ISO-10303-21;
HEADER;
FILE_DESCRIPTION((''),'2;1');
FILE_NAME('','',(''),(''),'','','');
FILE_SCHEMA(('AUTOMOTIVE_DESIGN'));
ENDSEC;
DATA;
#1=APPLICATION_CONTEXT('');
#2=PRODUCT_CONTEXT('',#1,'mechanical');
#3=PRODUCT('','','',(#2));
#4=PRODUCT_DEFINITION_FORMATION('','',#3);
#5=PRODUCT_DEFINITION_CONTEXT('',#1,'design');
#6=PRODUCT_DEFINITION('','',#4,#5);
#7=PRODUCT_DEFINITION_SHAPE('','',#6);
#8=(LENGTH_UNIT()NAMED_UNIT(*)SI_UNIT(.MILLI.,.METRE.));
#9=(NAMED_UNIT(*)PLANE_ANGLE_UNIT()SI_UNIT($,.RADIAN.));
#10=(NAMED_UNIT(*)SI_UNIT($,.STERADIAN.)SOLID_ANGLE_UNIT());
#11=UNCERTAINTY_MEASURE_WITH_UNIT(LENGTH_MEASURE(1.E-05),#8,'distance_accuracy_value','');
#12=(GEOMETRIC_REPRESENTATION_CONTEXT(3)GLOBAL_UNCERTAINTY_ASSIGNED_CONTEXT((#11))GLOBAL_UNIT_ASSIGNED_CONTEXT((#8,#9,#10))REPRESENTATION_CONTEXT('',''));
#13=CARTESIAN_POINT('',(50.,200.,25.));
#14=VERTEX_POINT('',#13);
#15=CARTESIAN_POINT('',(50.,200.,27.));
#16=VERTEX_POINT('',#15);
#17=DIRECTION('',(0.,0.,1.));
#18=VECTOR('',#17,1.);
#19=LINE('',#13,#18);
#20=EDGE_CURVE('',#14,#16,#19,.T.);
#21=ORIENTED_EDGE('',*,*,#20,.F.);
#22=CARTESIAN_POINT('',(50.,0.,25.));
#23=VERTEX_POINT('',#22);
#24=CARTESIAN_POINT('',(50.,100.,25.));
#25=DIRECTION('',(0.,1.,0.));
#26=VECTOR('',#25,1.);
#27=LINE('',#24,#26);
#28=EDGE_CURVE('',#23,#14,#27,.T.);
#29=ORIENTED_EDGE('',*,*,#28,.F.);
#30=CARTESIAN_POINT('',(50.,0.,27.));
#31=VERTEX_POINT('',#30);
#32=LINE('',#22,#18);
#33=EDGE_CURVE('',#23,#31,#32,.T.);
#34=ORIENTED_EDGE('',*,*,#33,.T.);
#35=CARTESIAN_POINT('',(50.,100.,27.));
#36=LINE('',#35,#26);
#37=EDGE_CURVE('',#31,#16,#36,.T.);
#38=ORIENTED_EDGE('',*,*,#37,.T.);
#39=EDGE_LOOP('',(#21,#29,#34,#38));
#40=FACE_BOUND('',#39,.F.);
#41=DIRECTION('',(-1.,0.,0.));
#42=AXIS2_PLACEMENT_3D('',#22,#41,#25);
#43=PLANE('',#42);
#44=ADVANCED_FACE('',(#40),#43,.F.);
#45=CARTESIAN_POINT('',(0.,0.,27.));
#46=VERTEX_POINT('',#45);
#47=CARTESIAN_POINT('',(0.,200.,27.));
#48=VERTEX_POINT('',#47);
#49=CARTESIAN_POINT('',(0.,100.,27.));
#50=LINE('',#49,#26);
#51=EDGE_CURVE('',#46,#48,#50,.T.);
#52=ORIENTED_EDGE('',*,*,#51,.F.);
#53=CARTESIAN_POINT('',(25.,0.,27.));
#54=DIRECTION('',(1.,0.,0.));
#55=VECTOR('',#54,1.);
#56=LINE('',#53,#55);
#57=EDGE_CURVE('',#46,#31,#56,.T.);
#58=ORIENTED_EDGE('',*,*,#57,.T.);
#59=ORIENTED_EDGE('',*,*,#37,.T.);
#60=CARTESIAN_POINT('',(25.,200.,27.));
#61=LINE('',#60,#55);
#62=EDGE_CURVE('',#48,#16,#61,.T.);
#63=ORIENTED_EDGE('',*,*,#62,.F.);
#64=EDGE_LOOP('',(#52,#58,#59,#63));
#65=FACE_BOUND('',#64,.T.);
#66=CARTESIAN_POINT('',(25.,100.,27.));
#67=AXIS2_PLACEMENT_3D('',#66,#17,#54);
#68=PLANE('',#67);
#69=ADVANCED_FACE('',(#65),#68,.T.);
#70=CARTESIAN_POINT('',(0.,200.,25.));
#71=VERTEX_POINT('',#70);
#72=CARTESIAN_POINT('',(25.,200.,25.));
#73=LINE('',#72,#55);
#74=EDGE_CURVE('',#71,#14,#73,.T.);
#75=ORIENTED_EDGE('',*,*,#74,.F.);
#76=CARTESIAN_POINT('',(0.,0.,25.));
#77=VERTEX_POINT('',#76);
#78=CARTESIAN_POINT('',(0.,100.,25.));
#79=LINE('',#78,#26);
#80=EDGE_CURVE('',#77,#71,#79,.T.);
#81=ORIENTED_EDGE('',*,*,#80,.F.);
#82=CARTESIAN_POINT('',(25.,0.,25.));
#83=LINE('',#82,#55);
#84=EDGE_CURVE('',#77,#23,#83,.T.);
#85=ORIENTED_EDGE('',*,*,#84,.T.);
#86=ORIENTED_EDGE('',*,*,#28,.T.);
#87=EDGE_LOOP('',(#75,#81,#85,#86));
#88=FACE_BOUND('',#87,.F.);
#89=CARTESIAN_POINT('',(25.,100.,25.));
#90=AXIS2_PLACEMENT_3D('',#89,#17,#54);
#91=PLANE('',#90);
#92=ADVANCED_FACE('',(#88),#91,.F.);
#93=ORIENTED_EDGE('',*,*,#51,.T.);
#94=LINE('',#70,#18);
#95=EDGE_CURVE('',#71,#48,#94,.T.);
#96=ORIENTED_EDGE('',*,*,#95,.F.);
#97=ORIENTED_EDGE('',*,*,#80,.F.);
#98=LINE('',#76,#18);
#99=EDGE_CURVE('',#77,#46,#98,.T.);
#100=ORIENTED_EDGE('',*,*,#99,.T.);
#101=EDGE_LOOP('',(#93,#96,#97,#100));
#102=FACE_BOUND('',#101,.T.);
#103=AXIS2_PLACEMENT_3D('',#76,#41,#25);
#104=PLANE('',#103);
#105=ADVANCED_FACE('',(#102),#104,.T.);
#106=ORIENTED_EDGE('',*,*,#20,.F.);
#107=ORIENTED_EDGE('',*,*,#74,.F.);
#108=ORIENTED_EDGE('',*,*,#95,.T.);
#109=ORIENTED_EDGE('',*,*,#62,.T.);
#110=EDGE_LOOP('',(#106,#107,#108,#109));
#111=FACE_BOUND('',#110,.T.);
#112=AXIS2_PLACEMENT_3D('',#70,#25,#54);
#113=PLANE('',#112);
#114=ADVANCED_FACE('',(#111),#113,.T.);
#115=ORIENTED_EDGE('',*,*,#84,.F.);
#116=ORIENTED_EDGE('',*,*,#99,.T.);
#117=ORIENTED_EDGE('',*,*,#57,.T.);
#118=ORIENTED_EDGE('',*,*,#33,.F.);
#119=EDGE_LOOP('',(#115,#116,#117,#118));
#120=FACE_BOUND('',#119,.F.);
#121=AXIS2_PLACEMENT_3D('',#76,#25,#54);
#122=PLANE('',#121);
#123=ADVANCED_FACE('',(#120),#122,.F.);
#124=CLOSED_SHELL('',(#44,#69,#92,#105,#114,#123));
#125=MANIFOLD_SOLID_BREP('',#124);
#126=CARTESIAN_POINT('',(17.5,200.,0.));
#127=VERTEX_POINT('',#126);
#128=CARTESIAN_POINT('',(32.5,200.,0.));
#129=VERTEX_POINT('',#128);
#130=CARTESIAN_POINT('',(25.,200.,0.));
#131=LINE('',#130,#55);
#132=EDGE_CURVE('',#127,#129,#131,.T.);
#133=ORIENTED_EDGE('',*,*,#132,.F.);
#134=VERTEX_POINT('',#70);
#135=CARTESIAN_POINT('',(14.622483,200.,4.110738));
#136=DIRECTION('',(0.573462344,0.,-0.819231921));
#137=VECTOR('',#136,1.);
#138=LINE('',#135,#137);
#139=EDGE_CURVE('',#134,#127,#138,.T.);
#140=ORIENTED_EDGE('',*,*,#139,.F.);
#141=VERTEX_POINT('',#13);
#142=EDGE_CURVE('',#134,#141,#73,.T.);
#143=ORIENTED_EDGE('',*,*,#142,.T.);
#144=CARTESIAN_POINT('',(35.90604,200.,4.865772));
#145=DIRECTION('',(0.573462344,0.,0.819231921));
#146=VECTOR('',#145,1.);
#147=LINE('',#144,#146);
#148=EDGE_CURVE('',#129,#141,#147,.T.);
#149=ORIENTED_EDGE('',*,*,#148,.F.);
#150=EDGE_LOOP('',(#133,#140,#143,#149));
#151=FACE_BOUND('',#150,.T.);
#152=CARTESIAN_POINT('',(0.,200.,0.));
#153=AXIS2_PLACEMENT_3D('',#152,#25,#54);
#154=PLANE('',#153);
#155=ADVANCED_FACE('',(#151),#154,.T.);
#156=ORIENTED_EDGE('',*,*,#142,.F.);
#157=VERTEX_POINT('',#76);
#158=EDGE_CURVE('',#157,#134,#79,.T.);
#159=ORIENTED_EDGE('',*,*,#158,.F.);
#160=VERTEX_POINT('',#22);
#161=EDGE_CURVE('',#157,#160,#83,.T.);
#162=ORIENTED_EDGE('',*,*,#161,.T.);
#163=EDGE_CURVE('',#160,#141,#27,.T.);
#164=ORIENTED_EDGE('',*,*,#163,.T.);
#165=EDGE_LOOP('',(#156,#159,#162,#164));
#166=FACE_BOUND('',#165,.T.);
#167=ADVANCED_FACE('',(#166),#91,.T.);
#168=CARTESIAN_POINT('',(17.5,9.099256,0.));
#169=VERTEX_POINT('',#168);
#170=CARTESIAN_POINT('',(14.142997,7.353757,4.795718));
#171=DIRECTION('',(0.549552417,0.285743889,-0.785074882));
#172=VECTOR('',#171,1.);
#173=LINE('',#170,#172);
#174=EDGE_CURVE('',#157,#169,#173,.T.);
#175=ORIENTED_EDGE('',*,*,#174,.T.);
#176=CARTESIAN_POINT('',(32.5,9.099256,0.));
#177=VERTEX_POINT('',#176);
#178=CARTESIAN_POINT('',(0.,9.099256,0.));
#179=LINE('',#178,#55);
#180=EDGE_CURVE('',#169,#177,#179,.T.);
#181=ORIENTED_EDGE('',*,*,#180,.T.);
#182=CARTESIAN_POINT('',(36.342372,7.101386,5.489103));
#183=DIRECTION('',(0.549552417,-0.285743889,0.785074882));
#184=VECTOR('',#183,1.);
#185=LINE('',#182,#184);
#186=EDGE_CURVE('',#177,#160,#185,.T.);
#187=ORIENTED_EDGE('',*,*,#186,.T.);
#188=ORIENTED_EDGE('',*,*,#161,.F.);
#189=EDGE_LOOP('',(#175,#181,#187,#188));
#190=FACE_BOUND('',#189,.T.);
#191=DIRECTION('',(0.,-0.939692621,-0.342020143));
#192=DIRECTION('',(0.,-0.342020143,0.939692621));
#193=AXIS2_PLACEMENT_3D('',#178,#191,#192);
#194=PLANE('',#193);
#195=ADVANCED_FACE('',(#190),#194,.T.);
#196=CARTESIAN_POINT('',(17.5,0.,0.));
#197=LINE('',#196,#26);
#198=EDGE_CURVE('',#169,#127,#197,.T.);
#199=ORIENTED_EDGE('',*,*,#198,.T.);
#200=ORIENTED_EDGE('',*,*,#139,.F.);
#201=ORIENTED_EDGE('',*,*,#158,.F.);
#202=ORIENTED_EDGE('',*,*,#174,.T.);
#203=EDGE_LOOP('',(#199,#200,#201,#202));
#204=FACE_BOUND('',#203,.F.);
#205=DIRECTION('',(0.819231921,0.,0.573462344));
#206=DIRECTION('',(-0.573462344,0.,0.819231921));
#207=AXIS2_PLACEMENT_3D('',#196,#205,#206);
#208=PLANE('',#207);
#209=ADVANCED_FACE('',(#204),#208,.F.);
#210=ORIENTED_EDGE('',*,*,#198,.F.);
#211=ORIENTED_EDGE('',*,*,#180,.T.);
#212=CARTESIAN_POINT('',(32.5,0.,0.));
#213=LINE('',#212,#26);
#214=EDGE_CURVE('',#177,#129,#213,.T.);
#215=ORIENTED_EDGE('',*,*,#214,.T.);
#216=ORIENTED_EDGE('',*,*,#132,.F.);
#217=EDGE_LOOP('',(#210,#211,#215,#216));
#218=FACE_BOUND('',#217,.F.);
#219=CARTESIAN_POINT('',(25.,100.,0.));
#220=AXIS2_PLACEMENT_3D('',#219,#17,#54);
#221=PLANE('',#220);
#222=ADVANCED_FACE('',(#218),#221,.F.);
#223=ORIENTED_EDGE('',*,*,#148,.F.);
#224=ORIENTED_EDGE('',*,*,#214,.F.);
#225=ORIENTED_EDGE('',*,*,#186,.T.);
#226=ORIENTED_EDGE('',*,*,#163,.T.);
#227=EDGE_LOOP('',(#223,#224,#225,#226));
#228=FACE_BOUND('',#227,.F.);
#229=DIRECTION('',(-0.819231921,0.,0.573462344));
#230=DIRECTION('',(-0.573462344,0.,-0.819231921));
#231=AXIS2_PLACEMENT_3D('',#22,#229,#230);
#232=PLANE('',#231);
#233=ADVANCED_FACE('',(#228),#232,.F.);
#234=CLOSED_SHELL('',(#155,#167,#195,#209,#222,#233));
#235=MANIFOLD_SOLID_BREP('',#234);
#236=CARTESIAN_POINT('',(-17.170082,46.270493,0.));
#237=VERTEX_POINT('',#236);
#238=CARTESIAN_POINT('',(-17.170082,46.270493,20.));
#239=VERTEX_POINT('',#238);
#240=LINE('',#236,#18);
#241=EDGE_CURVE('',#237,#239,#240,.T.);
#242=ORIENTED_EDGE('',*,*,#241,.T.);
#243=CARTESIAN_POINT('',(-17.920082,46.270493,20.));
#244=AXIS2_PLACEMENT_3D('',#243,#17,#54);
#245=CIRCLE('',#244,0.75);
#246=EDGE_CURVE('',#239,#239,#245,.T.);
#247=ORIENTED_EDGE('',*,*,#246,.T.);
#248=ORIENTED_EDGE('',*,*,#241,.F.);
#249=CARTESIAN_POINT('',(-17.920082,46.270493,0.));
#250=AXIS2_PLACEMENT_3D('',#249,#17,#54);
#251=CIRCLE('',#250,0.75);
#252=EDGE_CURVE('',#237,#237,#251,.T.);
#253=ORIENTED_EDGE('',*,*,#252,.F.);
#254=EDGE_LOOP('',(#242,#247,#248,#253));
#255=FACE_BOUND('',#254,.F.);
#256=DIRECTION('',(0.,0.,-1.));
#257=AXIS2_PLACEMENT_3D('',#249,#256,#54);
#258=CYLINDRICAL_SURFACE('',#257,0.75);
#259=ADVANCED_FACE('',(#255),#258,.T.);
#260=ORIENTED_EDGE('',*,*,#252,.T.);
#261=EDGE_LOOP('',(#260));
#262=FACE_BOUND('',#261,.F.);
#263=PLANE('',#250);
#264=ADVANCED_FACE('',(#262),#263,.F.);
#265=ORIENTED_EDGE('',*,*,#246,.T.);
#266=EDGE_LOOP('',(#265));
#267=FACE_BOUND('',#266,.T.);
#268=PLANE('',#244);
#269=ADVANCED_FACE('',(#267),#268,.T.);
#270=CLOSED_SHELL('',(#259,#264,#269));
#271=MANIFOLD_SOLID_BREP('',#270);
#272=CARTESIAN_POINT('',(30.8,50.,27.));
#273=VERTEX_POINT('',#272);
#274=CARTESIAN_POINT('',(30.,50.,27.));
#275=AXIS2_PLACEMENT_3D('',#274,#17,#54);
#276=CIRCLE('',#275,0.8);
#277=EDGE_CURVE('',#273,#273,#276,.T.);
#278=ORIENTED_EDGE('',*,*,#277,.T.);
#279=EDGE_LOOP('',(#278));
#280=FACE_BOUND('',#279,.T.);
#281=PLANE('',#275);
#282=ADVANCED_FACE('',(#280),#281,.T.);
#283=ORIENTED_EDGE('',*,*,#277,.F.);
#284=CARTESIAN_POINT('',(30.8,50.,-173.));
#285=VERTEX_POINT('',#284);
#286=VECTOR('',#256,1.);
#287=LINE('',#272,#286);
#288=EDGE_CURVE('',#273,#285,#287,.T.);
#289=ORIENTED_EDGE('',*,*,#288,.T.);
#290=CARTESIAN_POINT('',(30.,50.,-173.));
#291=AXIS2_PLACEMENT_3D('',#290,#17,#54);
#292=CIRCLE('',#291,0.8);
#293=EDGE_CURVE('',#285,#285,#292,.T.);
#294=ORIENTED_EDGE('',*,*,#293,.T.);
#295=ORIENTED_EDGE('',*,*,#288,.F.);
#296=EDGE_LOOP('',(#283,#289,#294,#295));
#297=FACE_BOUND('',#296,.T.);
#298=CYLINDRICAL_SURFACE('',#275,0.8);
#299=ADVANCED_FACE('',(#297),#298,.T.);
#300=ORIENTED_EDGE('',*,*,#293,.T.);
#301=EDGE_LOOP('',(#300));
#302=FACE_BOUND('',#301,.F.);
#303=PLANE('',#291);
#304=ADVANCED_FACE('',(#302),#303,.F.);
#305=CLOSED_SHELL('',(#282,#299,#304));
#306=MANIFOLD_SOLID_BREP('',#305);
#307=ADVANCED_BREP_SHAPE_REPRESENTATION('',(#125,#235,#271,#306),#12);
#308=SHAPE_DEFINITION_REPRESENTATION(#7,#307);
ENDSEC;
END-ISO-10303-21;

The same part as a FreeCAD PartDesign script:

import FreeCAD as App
import Part
import Sketcher
from FreeCAD import Vector
Q = App.Units.Quantity


def add_polygon(sketch, points):
    """Adds a closed chain of lines whose ends are joined by coincident constraints."""
    first, n = sketch.GeometryCount, len(points)
    for a, b in zip(points, points[1:] + points[:1]):
        sketch.addGeometry(Part.LineSegment(App.Vector(*a, 0), App.Vector(*b, 0)), False)
    for i in range(n):
        sketch.addConstraint(Sketcher.Constraint("Coincident", first + i, 2, first + (i + 1) % n, 1))

doc = App.newDocument("Part")
params = doc.addObject("Spreadsheet::Sheet", "Params")
for row, (alias, value) in enumerate([
    ("sketch1_width", "50 mm"),
    ("sketch1_height", "200 mm"),
    ("pad1_length", "25 mm"),
    ("sketch2_height", "25 mm"),
    ("sketch2_width", "17.5 mm"),
    ("sketch3_height", "25 mm"),
    ("sketch4_width", "50 mm"),
    ("sketch4_height", "200 mm"),
    ("pad2_length", "2 mm"),
    ("sketch5_diameter", "1.6 mm"),
    ("pad3_length", "200 mm"),
    ("sketch6_diameter", "1.5 mm"),
    ("pad4_length", "20 mm"),
], start=1):
    params.set(f"A{row}", alias)
    params.set(f"B{row}", "=" + value)
    params.setAlias(f"B{row}", alias)

body = doc.addObject("PartDesign::Body", "Body")

# Sketch on XY plane
sketch1 = body.newObject("Sketcher::SketchObject", "Sketch")
sketch1.AttachmentSupport = (doc.getObject("XY_Plane"), [""])
sketch1.MapMode = "FlatFace"
add_polygon(sketch1, [(0, 200), (0, 0), (50, 0), (50, 200)])  # lines 0-3
sketch1.addConstraint([
    Sketcher.Constraint("Vertical", 0),
    Sketcher.Constraint("Horizontal", 1),
    Sketcher.Constraint("Vertical", 2),
    Sketcher.Constraint("Horizontal", 3),
    Sketcher.Constraint("Coincident", 0, 2, -1, 1),
    Sketcher.Constraint("DistanceX", 1, 1, 1, 2, 50.0),
    Sketcher.Constraint("DistanceY", 0, 2, 0, 1, 200.0),
])
sketch1.setExpression("Constraints[9]", "Params.sketch1_width")
sketch1.setExpression("Constraints[10]", "Params.sketch1_height")
pad1 = body.newObject("PartDesign::Pad", "Pad")
pad1.Profile = sketch1
pad1.setExpression("Length", "Params.pad1_length")

# Sketch on XZ plane
sketch2 = body.newObject("Sketcher::SketchObject", "Sketch001")
sketch2.AttachmentSupport = (doc.getObject("XZ_Plane"), [""])
sketch2.MapMode = "FlatFace"
add_polygon(sketch2, [(18, 0), (0, 25), (0, 0)])  # lines 0-2
add_polygon(sketch2, [(50, 25), (32, 0), (50, 0)])  # lines 3-5
sketch2.addConstraint([
    Sketcher.Constraint("Vertical", 1),
    Sketcher.Constraint("Horizontal", 2),
    Sketcher.Constraint("Horizontal", 4),
    Sketcher.Constraint("Vertical", 5),
    Sketcher.Constraint("Coincident", 1, 2, -1, 1),
    Sketcher.Constraint("PointOnObject", 3, 2, -1),
    Sketcher.Constraint("Horizontal", 0, 2, 5, 2),
    Sketcher.Constraint("Equal", 2, 4),
    Sketcher.Constraint("DistanceY", 1, 2, 1, 1, 25.0),
    Sketcher.Constraint("DistanceX", 2, 1, 2, 2, 17.5),
    Sketcher.Constraint("DistanceX", -1, 1, 4, 2, 50.0),
])
sketch2.setExpression("Constraints[14]", "Params.sketch2_height")
sketch2.setExpression("Constraints[15]", "Params.sketch2_width")
pocket1 = body.newObject("PartDesign::Pocket", "Pocket")
pocket1.Profile = sketch2
pocket1.Type = "ThroughAll"

# Sketch on YZ plane
sketch3 = body.newObject("Sketcher::SketchObject", "Sketch002")
sketch3.AttachmentSupport = (doc.getObject("YZ_Plane"), [""])
sketch3.MapMode = "FlatFace"
add_polygon(sketch3, [(0, 25), (0, 0), (9, 0)])  # lines 0-2
sketch3.addConstraint([
    Sketcher.Constraint("Vertical", 0),
    Sketcher.Constraint("Horizontal", 1),
    Sketcher.Constraint("Coincident", 0, 2, -1, 1),
    Sketcher.Constraint("DistanceY", 0, 2, 0, 1, 25.0),
    Sketcher.Constraint("Angle", 2, Q("110 deg")),
])
sketch3.setExpression("Constraints[6]", "Params.sketch3_height")
pocket2 = body.newObject("PartDesign::Pocket", "Pocket001")
pocket2.Profile = sketch3
pocket2.Type = "ThroughAll"
pocket2.Reversed = True
body2 = doc.addObject("PartDesign::Body", "Body001")

# Sketch on XY plane
sketch4 = body2.newObject("Sketcher::SketchObject", "Sketch003")
sketch4.AttachmentSupport = (doc.getObject("XY_Plane001"), [""])
sketch4.MapMode = "FlatFace"
sketch4.AttachmentOffset = App.Placement(Vector(0, 0, 25), App.Rotation())
add_polygon(sketch4, [(0, 200), (0, 0), (50, 0), (50, 200)])  # lines 0-3
sketch4.addConstraint([
    Sketcher.Constraint("Vertical", 0),
    Sketcher.Constraint("Horizontal", 1),
    Sketcher.Constraint("Vertical", 2),
    Sketcher.Constraint("Horizontal", 3),
    Sketcher.Constraint("Coincident", 0, 2, -1, 1),
    Sketcher.Constraint("DistanceX", 1, 1, 1, 2, 50.0),
    Sketcher.Constraint("DistanceY", 0, 2, 0, 1, 200.0),
])
sketch4.setExpression("Constraints[9]", "Params.sketch4_width")
sketch4.setExpression("Constraints[10]", "Params.sketch4_height")
pad2 = body2.newObject("PartDesign::Pad", "Pad001")
pad2.Profile = sketch4
pad2.setExpression("Length", "Params.pad2_length")
body3 = doc.addObject("PartDesign::Body", "Body002")

# Sketch on XY plane
sketch5 = body3.newObject("Sketcher::SketchObject", "Sketch004")
sketch5.AttachmentSupport = (doc.getObject("XY_Plane002"), [""])
sketch5.MapMode = "FlatFace"
sketch5.AttachmentOffset = App.Placement(Vector(0, 0, 27), App.Rotation())
sketch5.addGeometry(Part.Circle(Vector(30, 50, 0), Vector(0, 0, 1), 0.8), False)
sketch5.addConstraint([
    Sketcher.Constraint("Diameter", 0, 1.6),
    Sketcher.Constraint("DistanceX", -1, 1, 0, 3, 30.0),
    Sketcher.Constraint("DistanceY", -1, 1, 0, 3, 50.0),
])
sketch5.setExpression("Constraints[0]", "Params.sketch5_diameter")
pad3 = body3.newObject("PartDesign::Pad", "Pad002")
pad3.Profile = sketch5
pad3.setExpression("Length", "Params.pad3_length")
pad3.Reversed = True
body4 = doc.addObject("PartDesign::Body", "Body003")

# Sketch on XY plane
sketch6 = body4.newObject("Sketcher::SketchObject", "Sketch005")
sketch6.AttachmentSupport = (doc.getObject("XY_Plane003"), [""])
sketch6.MapMode = "FlatFace"
sketch6.addGeometry(Part.Circle(Vector(-17.9, 46.3, 0), Vector(0, 0, 1), 0.8), False)
sketch6.addConstraint([
    Sketcher.Constraint("Diameter", 0, 1.5),
    Sketcher.Constraint("DistanceX", 0, 3, -1, 1, 17.920082),
    Sketcher.Constraint("DistanceY", -1, 1, 0, 3, 46.270493),
])
sketch6.setExpression("Constraints[0]", "Params.sketch6_diameter")
pad4 = body4.newObject("PartDesign::Pad", "Pad003")
pad4.Profile = sketch6
pad4.setExpression("Length", "Params.pad4_length")

doc.recompute()
